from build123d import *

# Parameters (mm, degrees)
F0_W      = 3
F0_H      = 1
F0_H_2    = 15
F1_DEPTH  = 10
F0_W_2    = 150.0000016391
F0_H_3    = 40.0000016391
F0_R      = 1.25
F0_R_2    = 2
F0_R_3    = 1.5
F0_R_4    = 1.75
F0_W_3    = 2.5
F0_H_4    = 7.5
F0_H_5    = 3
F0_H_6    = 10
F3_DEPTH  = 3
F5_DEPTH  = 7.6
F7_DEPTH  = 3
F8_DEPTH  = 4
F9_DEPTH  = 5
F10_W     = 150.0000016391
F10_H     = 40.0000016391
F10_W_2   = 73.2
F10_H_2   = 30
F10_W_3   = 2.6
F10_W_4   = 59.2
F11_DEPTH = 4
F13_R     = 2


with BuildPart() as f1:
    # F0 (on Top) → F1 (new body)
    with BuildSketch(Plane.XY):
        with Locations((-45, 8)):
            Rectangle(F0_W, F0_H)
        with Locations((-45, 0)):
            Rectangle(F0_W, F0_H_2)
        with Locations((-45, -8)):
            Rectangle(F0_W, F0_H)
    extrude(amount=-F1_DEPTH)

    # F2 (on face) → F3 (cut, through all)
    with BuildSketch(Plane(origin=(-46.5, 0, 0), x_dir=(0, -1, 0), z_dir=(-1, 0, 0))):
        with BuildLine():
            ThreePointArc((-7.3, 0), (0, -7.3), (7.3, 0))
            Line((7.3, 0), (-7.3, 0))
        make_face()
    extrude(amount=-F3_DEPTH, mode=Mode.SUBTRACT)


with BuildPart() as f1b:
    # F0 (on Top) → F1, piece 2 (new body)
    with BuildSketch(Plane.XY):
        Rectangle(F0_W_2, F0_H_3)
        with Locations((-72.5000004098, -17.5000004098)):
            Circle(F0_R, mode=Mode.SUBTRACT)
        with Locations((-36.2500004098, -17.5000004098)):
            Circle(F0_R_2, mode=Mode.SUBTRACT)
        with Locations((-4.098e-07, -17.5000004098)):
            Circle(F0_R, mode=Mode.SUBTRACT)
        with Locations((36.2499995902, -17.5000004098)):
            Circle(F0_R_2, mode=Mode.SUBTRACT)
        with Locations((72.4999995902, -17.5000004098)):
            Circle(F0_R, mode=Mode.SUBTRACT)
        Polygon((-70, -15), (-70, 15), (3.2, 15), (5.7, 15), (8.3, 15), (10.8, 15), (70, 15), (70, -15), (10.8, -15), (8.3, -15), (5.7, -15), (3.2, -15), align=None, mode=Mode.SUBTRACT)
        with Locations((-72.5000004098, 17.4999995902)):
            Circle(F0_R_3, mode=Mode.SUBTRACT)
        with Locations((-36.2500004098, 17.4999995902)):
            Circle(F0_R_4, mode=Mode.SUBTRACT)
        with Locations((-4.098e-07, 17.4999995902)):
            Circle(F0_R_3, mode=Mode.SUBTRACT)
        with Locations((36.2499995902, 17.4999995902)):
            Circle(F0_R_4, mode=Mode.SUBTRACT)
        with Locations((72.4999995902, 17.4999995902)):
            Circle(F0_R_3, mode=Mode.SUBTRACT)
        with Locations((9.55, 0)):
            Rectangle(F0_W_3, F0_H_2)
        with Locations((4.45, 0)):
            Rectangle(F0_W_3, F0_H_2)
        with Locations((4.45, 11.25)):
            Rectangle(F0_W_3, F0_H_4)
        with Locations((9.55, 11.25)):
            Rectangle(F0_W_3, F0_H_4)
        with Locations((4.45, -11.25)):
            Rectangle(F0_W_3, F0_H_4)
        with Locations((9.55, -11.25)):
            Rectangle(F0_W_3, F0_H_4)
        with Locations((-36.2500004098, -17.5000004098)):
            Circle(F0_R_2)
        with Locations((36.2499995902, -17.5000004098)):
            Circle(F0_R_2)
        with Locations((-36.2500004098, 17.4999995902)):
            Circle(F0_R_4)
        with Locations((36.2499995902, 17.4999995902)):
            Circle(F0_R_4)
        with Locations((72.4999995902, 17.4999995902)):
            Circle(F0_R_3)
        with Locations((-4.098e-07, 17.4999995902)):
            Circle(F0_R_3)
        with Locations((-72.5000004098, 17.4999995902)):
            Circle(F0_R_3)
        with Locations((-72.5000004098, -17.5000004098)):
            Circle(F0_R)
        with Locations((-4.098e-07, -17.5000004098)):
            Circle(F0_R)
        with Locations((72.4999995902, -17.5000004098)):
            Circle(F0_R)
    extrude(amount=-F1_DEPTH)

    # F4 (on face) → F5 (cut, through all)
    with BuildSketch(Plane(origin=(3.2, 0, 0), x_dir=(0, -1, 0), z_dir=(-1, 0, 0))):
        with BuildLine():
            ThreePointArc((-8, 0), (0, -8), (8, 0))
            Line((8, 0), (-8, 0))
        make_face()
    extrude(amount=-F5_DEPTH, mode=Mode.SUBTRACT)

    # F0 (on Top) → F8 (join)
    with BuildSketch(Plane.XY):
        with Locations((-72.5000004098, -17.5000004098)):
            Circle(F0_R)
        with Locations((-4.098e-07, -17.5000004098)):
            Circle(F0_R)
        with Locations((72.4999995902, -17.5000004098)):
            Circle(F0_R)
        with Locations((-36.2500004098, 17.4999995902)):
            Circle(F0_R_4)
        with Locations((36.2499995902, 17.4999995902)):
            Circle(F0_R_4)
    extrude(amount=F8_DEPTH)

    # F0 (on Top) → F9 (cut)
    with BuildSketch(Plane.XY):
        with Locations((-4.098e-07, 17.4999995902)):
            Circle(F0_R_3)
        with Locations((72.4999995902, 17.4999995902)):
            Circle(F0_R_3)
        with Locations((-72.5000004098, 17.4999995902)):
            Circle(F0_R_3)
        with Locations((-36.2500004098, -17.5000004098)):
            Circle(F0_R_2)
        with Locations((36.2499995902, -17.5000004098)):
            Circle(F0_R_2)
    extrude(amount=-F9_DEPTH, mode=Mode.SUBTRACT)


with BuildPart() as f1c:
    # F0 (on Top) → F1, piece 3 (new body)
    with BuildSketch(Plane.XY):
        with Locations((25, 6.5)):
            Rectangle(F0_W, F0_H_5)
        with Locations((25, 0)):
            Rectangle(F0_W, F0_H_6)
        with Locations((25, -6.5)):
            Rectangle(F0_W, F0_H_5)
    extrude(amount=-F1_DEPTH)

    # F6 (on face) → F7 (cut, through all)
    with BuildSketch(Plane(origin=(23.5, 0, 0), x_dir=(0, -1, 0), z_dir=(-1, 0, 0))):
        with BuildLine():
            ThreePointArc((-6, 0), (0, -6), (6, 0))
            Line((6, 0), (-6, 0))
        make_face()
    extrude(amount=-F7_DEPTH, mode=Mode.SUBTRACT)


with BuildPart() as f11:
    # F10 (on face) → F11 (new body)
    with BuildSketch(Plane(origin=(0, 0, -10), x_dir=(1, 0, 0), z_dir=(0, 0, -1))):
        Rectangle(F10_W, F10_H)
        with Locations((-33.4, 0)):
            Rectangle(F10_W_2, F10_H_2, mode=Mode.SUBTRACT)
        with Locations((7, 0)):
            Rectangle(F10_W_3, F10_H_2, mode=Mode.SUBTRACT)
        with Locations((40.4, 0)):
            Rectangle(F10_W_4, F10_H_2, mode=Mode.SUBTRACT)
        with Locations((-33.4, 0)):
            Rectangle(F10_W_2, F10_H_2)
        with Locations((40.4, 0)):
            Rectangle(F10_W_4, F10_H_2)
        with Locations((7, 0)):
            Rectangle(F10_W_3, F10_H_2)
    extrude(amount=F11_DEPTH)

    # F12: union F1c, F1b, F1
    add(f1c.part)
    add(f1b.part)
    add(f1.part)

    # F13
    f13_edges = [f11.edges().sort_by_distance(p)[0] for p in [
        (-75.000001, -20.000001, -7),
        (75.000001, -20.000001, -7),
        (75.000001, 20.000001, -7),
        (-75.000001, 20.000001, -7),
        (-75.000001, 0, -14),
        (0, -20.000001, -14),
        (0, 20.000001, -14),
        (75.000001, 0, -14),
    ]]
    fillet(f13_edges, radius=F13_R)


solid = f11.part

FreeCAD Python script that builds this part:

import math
import FreeCAD as App
import Part
import Sketcher


def edges_at(feature, points):
    """Names of the edges that pass closest to the given points."""
    edges = feature.Shape.Edges
    near = lambda p: min(range(len(edges)), key=lambda i: edges[i].distToShape(Part.Vertex(*p))[0])
    return sorted({f"Edge{near(p) + 1}" for p in points})

doc = App.newDocument("Part")
params = doc.addObject("Spreadsheet::Sheet", "Params")
for row, (alias, value) in enumerate([
    ("sketch1_width", "3 mm"),
    ("sketch1_height", "17 mm"),
    ("pad1_length", "10 mm"),
    ("sketch2_radius", "7.3 mm"),
    ("sketch3_width", "150.000002 mm"),
    ("sketch3_height", "40.000002 mm"),
    ("sketch3_height2", "30 mm"),
    ("sketch3_width2", "59.2 mm"),
    ("sketch3_width3", "2.6 mm"),
    ("pad2_length", "10 mm"),
    ("sketch4_radius", "8 mm"),
    ("pocket2_length", "7.6 mm"),
    ("sketch5_diameter", "2.5 mm"),
    ("sketch5_diameter2", "3.5 mm"),
    ("pad3_length", "4 mm"),
    ("sketch6_diameter", "3 mm"),
    ("sketch6_diameter2", "4 mm"),
    ("pocket3_length", "5 mm"),
    ("sketch7_width", "3 mm"),
    ("sketch7_height", "16 mm"),
    ("pad4_length", "10 mm"),
    ("sketch8_radius", "6 mm"),
    ("sketch9_width", "150.000002 mm"),
    ("sketch9_height", "40.000002 mm"),
    ("pad5_length", "4 mm"),
    ("fillet_radius", "2 mm"),
], start=1):
    params.set(f"A{row}", alias)
    params.set(f"B{row}", "=" + value)
    params.setAlias(f"B{row}", alias)

body = doc.addObject("PartDesign::Body", "Body")

# Sketch on XY plane
sketch1 = body.newObject("Sketcher::SketchObject", "Sketch")
sketch1.AttachmentSupport = (doc.getObject("XY_Plane"), [""])
sketch1.MapMode = "FlatFace"
sketch1.addGeometry([
    Part.LineSegment(App.Vector(-46.5, 8.5, 0), App.Vector(-46.5, -8.5, 0)),
    Part.LineSegment(App.Vector(-46.5, -8.5, 0), App.Vector(-43.5, -8.5, 0)),
    Part.LineSegment(App.Vector(-43.5, -8.5, 0), App.Vector(-43.5, 8.5, 0)),
    Part.LineSegment(App.Vector(-43.5, 8.5, 0), App.Vector(-46.5, 8.5, 0)),
], False)
sketch1.addConstraint([
    Sketcher.Constraint("Coincident", 0, 2, 1, 1),
    Sketcher.Constraint("Coincident", 1, 2, 2, 1),
    Sketcher.Constraint("Coincident", 2, 2, 3, 1),
    Sketcher.Constraint("Coincident", 3, 2, 0, 1),
    Sketcher.Constraint("Vertical", 0),
    Sketcher.Constraint("Horizontal", 1),
    Sketcher.Constraint("Vertical", 2),
    Sketcher.Constraint("Horizontal", 3),
    Sketcher.Constraint("DistanceX", 1, 1, 1, 2, 3.0),
    Sketcher.Constraint("DistanceY", 0, 2, 0, 1, 17.0),
    Sketcher.Constraint("DistanceX", 0, 2, -1, 1, 46.5),
    Sketcher.Constraint("DistanceY", 0, 2, -1, 1, 8.5),
])
sketch1.setExpression("Constraints[8]", "Params.sketch1_width")
sketch1.setExpression("Constraints[9]", "Params.sketch1_height")
pad1 = body.newObject("PartDesign::Pad", "Pad")
pad1.Profile = sketch1
pad1.setExpression("Length", "Params.pad1_length")
pad1.Reversed = True

# Sketch on YZ plane
sketch2 = body.newObject("Sketcher::SketchObject", "Sketch001")
sketch2.AttachmentSupport = (doc.getObject("YZ_Plane"), [""])
sketch2.MapMode = "FlatFace"
sketch2.AttachmentOffset = App.Placement(App.Vector(0, 0, -46.5), App.Rotation())
sketch2.addGeometry([
    Part.ArcOfCircle(Part.Circle(App.Vector(0, 0, 0), App.Vector(0, 0, 1), 7), math.radians(180), math.radians(360)),
    Part.LineSegment(App.Vector(-7, 0, 0), App.Vector(7, 0, 0)),
], False)
sketch2.addConstraint([
    Sketcher.Constraint("Coincident", 0, 1, 1, 1),
    Sketcher.Constraint("Coincident", 1, 2, 0, 2),
    Sketcher.Constraint("Horizontal", 1),
    Sketcher.Constraint("Coincident", 0, 3, -1, 1),
    Sketcher.Constraint("PointOnObject", 0, 1, -1),
    Sketcher.Constraint("Radius", 0, 7.3),
])
sketch2.setExpression("Constraints[5]", "Params.sketch2_radius")
pocket1 = body.newObject("PartDesign::Pocket", "Pocket")
pocket1.Profile = sketch2
pocket1.Type = "ThroughAll"
pocket1.Reversed = True
body2 = doc.addObject("PartDesign::Body", "Body001")

# Sketch on XY plane
sketch3 = body2.newObject("Sketcher::SketchObject", "Sketch002")
sketch3.AttachmentSupport = (doc.getObject("XY_Plane001"), [""])
sketch3.MapMode = "FlatFace"
sketch3.addGeometry([
    Part.LineSegment(App.Vector(-75, 20, 0), App.Vector(-75, -20, 0)),  # 0
    Part.LineSegment(App.Vector(-75, -20, 0), App.Vector(75, -20, 0)),  # 1
    Part.LineSegment(App.Vector(75, -20, 0), App.Vector(75, 20, 0)),  # 2
    Part.LineSegment(App.Vector(75, 20, 0), App.Vector(-75, 20, 0)),  # 3
    Part.LineSegment(App.Vector(70, -15, 0), App.Vector(10.8, -15, 0)),  # 4
    Part.LineSegment(App.Vector(10.8, -15, 0), App.Vector(10.8, 15, 0)),  # 5
    Part.LineSegment(App.Vector(10.8, 15, 0), App.Vector(70, 15, 0)),  # 6
    Part.LineSegment(App.Vector(70, 15, 0), App.Vector(70, -15, 0)),  # 7
    Part.LineSegment(App.Vector(8.3, -15, 0), App.Vector(5.7, -15, 0)),  # 8
    Part.LineSegment(App.Vector(5.7, -15, 0), App.Vector(5.7, 15, 0)),  # 9
    Part.LineSegment(App.Vector(5.7, 15, 0), App.Vector(8.3, 15, 0)),  # 10
    Part.LineSegment(App.Vector(8.3, 15, 0), App.Vector(8.3, -15, 0)),  # 11
    Part.LineSegment(App.Vector(3.2, -15, 0), App.Vector(-70, -15, 0)),  # 12
    Part.LineSegment(App.Vector(-70, -15, 0), App.Vector(-70, 15, 0)),  # 13
    Part.LineSegment(App.Vector(-70, 15, 0), App.Vector(3.2, 15, 0)),  # 14
    Part.LineSegment(App.Vector(3.2, 15, 0), App.Vector(3.2, -15, 0)),  # 15
], False)
sketch3.addConstraint([
    Sketcher.Constraint("Coincident", 0, 2, 1, 1),
    Sketcher.Constraint("Coincident", 1, 2, 2, 1),
    Sketcher.Constraint("Coincident", 2, 2, 3, 1),
    Sketcher.Constraint("Coincident", 3, 2, 0, 1),
    Sketcher.Constraint("Coincident", 4, 2, 5, 1),
    Sketcher.Constraint("Coincident", 5, 2, 6, 1),
    Sketcher.Constraint("Coincident", 6, 2, 7, 1),
    Sketcher.Constraint("Coincident", 7, 2, 4, 1),
    Sketcher.Constraint("Coincident", 8, 2, 9, 1),
    Sketcher.Constraint("Coincident", 9, 2, 10, 1),
    Sketcher.Constraint("Coincident", 10, 2, 11, 1),
    Sketcher.Constraint("Coincident", 11, 2, 8, 1),
    Sketcher.Constraint("Coincident", 12, 2, 13, 1),
    Sketcher.Constraint("Coincident", 13, 2, 14, 1),
    Sketcher.Constraint("Coincident", 14, 2, 15, 1),
    Sketcher.Constraint("Coincident", 15, 2, 12, 1),
    Sketcher.Constraint("Vertical", 0),
    Sketcher.Constraint("Horizontal", 1),
    Sketcher.Constraint("Vertical", 2),
    Sketcher.Constraint("Horizontal", 3),
    Sketcher.Constraint("Horizontal", 4),
    Sketcher.Constraint("Vertical", 5),
    Sketcher.Constraint("Horizontal", 6),
    Sketcher.Constraint("Vertical", 7),
    Sketcher.Constraint("Horizontal", 8),
    Sketcher.Constraint("Vertical", 9),
    Sketcher.Constraint("Horizontal", 10),
    Sketcher.Constraint("Vertical", 11),
    Sketcher.Constraint("Horizontal", 12),
    Sketcher.Constraint("Vertical", 13),
    Sketcher.Constraint("Horizontal", 14),
    Sketcher.Constraint("Vertical", 15),
    Sketcher.Constraint("Symmetric", 0, 2, 2, 2, -1, 1),
    Sketcher.Constraint("Symmetric", 6, 2, 12, 2, -1, 1),
    Sketcher.Constraint("Horizontal", 7, 2, 8, 2),
    Sketcher.Constraint("Horizontal", 6, 2, 9, 2),
    Sketcher.Constraint("Horizontal", 11, 2, 12, 2),
    Sketcher.Constraint("Horizontal", 10, 2, 13, 2),
    Sketcher.Constraint("DistanceX", 1, 1, 1, 2, 150.000002),
    Sketcher.Constraint("DistanceY", 0, 2, 0, 1, 40.000002),
    Sketcher.Constraint("DistanceY", 5, 1, 5, 2, 30.0),
    Sketcher.Constraint("DistanceX", 4, 2, 4, 1, 59.2),
    Sketcher.Constraint("DistanceX", 8, 2, 8, 1, 2.6),
    Sketcher.Constraint("DistanceX", 12, 2, 12, 1, 73.2),
    Sketcher.Constraint("DistanceX", -1, 1, 6, 2, 70.0),
    Sketcher.Constraint("DistanceX", -1, 1, 8, 2, 5.7),
])
sketch3.setExpression("Constraints[38]", "Params.sketch3_width")
sketch3.setExpression("Constraints[39]", "Params.sketch3_height")
sketch3.setExpression("Constraints[40]", "Params.sketch3_height2")
sketch3.setExpression("Constraints[41]", "Params.sketch3_width2")
sketch3.setExpression("Constraints[42]", "Params.sketch3_width3")
pad2 = body2.newObject("PartDesign::Pad", "Pad001")
pad2.Profile = sketch3
pad2.setExpression("Length", "Params.pad2_length")
pad2.Reversed = True

# Sketch on YZ plane
sketch4 = body2.newObject("Sketcher::SketchObject", "Sketch003")
sketch4.AttachmentSupport = (doc.getObject("YZ_Plane001"), [""])
sketch4.MapMode = "FlatFace"
sketch4.AttachmentOffset = App.Placement(App.Vector(0, 0, 3.2), App.Rotation())
sketch4.addGeometry([
    Part.ArcOfCircle(Part.Circle(App.Vector(0, 0, 0), App.Vector(0, 0, 1), 8), math.radians(180), math.radians(360)),
    Part.LineSegment(App.Vector(-8, 0, 0), App.Vector(8, 0, 0)),
], False)
sketch4.addConstraint([
    Sketcher.Constraint("Coincident", 0, 1, 1, 1),
    Sketcher.Constraint("Coincident", 1, 2, 0, 2),
    Sketcher.Constraint("Horizontal", 1),
    Sketcher.Constraint("Coincident", 0, 3, -1, 1),
    Sketcher.Constraint("PointOnObject", 0, 1, -1),
    Sketcher.Constraint("Radius", 0, 8.0),
])
sketch4.setExpression("Constraints[5]", "Params.sketch4_radius")
pocket2 = body2.newObject("PartDesign::Pocket", "Pocket001")
pocket2.Profile = sketch4
pocket2.setExpression("Length", "Params.pocket2_length")
pocket2.Reversed = True

# Sketch on XY plane
sketch5 = body2.newObject("Sketcher::SketchObject", "Sketch004")
sketch5.AttachmentSupport = (doc.getObject("XY_Plane001"), [""])
sketch5.MapMode = "FlatFace"
sketch5.addGeometry([
    Part.Circle(App.Vector(-72.5, -17.5, 0), App.Vector(0, 0, 1), 1.2),  # 0
    Part.Circle(App.Vector(0, -17.5, 0), App.Vector(0, 0, 1), 1.2),  # 1
    Part.Circle(App.Vector(72.5, -17.5, 0), App.Vector(0, 0, 1), 1.2),  # 2
    Part.Circle(App.Vector(-36.3, 17.5, 0), App.Vector(0, 0, 1), 1.8),  # 3
    Part.Circle(App.Vector(36.2, 17.5, 0), App.Vector(0, 0, 1), 1.8),  # 4
], False)
sketch5.addConstraint([
    Sketcher.Constraint("Equal", 0, 1),
    Sketcher.Constraint("Equal", 1, 2),
    Sketcher.Constraint("Equal", 3, 4),
    Sketcher.Constraint("Symmetric", 0, 3, 2, 3, -2),
    Sketcher.Constraint("Symmetric", 3, 3, 4, 3, -2),
    Sketcher.Constraint("PointOnObject", 1, 3, -2),
    Sketcher.Constraint("Horizontal", 0, 3, 1, 3),
    Sketcher.Constraint("Diameter", 0, 2.5),
    Sketcher.Constraint("Diameter", 3, 3.5),
    Sketcher.Constraint("DistanceX", 0, 3, 2, 3, 145.0),
    Sketcher.Constraint("DistanceY", 0, 3, 3, 3, 35.0),
    Sketcher.Constraint("DistanceY", 0, 3, -1, 1, 17.5),
    Sketcher.Constraint("DistanceX", 3, 3, 4, 3, 72.5),
])
sketch5.setExpression("Constraints[7]", "Params.sketch5_diameter")
sketch5.setExpression("Constraints[8]", "Params.sketch5_diameter2")
pad3 = body2.newObject("PartDesign::Pad", "Pad002")
pad3.Profile = sketch5
pad3.setExpression("Length", "Params.pad3_length")

# Sketch on XY plane
sketch6 = body2.newObject("Sketcher::SketchObject", "Sketch005")
sketch6.AttachmentSupport = (doc.getObject("XY_Plane001"), [""])
sketch6.MapMode = "FlatFace"
sketch6.addGeometry([
    Part.Circle(App.Vector(0, 17.5, 0), App.Vector(0, 0, 1), 1.5),  # 0
    Part.Circle(App.Vector(72.5, 17.5, 0), App.Vector(0, 0, 1), 1.5),  # 1
    Part.Circle(App.Vector(-72.5, 17.5, 0), App.Vector(0, 0, 1), 1.5),  # 2
    Part.Circle(App.Vector(-36.3, -17.5, 0), App.Vector(0, 0, 1), 2),  # 3
    Part.Circle(App.Vector(36.2, -17.5, 0), App.Vector(0, 0, 1), 2),  # 4
], False)
sketch6.addConstraint([
    Sketcher.Constraint("Equal", 0, 1),
    Sketcher.Constraint("Equal", 1, 2),
    Sketcher.Constraint("Equal", 3, 4),
    Sketcher.Constraint("Symmetric", 1, 3, 2, 3, -2),
    Sketcher.Constraint("Symmetric", 3, 3, 4, 3, -2),
    Sketcher.Constraint("PointOnObject", 0, 3, -2),
    Sketcher.Constraint("Horizontal", 0, 3, 1, 3),
    Sketcher.Constraint("Diameter", 0, 3.0),
    Sketcher.Constraint("Diameter", 3, 4.0),
    Sketcher.Constraint("DistanceX", 2, 3, 1, 3, 145.0),
    Sketcher.Constraint("DistanceY", 3, 3, 0, 3, 35.0),
    Sketcher.Constraint("DistanceY", -1, 1, 0, 3, 17.5),
    Sketcher.Constraint("DistanceX", 3, 3, 4, 3, 72.5),
])
sketch6.setExpression("Constraints[7]", "Params.sketch6_diameter")
sketch6.setExpression("Constraints[8]", "Params.sketch6_diameter2")
pocket3 = body2.newObject("PartDesign::Pocket", "Pocket002")
pocket3.Profile = sketch6
pocket3.setExpression("Length", "Params.pocket3_length")
body3 = doc.addObject("PartDesign::Body", "Body002")

# Sketch on XY plane
sketch7 = body3.newObject("Sketcher::SketchObject", "Sketch006")
sketch7.AttachmentSupport = (doc.getObject("XY_Plane002"), [""])
sketch7.MapMode = "FlatFace"
sketch7.addGeometry([
    Part.LineSegment(App.Vector(23.5, 8, 0), App.Vector(23.5, -8, 0)),
    Part.LineSegment(App.Vector(23.5, -8, 0), App.Vector(26.5, -8, 0)),
    Part.LineSegment(App.Vector(26.5, -8, 0), App.Vector(26.5, 8, 0)),
    Part.LineSegment(App.Vector(26.5, 8, 0), App.Vector(23.5, 8, 0)),
], False)
sketch7.addConstraint([
    Sketcher.Constraint("Coincident", 0, 2, 1, 1),
    Sketcher.Constraint("Coincident", 1, 2, 2, 1),
    Sketcher.Constraint("Coincident", 2, 2, 3, 1),
    Sketcher.Constraint("Coincident", 3, 2, 0, 1),
    Sketcher.Constraint("Vertical", 0),
    Sketcher.Constraint("Horizontal", 1),
    Sketcher.Constraint("Vertical", 2),
    Sketcher.Constraint("Horizontal", 3),
    Sketcher.Constraint("DistanceX", 1, 1, 1, 2, 3.0),
    Sketcher.Constraint("DistanceY", 0, 2, 0, 1, 16.0),
    Sketcher.Constraint("DistanceY", 0, 2, -1, 1, 8.0),
    Sketcher.Constraint("DistanceX", -1, 1, 0, 2, 23.5),
])
sketch7.setExpression("Constraints[8]", "Params.sketch7_width")
sketch7.setExpression("Constraints[9]", "Params.sketch7_height")
pad4 = body3.newObject("PartDesign::Pad", "Pad003")
pad4.Profile = sketch7
pad4.setExpression("Length", "Params.pad4_length")
pad4.Reversed = True

# Sketch on YZ plane
sketch8 = body3.newObject("Sketcher::SketchObject", "Sketch007")
sketch8.AttachmentSupport = (doc.getObject("YZ_Plane002"), [""])
sketch8.MapMode = "FlatFace"
sketch8.AttachmentOffset = App.Placement(App.Vector(0, 0, 23.5), App.Rotation())
sketch8.addGeometry([
    Part.ArcOfCircle(Part.Circle(App.Vector(0, 0, 0), App.Vector(0, 0, 1), 6), math.radians(180), math.radians(360)),
    Part.LineSegment(App.Vector(-6, 0, 0), App.Vector(6, 0, 0)),
], False)
sketch8.addConstraint([
    Sketcher.Constraint("Coincident", 0, 1, 1, 1),
    Sketcher.Constraint("Coincident", 1, 2, 0, 2),
    Sketcher.Constraint("Horizontal", 1),
    Sketcher.Constraint("Coincident", 0, 3, -1, 1),
    Sketcher.Constraint("PointOnObject", 0, 1, -1),
    Sketcher.Constraint("Radius", 0, 6.0),
])
sketch8.setExpression("Constraints[5]", "Params.sketch8_radius")
pocket4 = body3.newObject("PartDesign::Pocket", "Pocket003")
pocket4.Profile = sketch8
pocket4.Type = "ThroughAll"
pocket4.Reversed = True
body4 = doc.addObject("PartDesign::Body", "Body003")

# Sketch on XY plane
sketch9 = body4.newObject("Sketcher::SketchObject", "Sketch008")
sketch9.AttachmentSupport = (doc.getObject("XY_Plane003"), [""])
sketch9.MapMode = "FlatFace"
sketch9.AttachmentOffset = App.Placement(App.Vector(0, 0, -10), App.Rotation())
sketch9.addGeometry([
    Part.LineSegment(App.Vector(-75, -20, 0), App.Vector(-75, 20, 0)),
    Part.LineSegment(App.Vector(-75, 20, 0), App.Vector(75, 20, 0)),
    Part.LineSegment(App.Vector(75, 20, 0), App.Vector(75, -20, 0)),
    Part.LineSegment(App.Vector(75, -20, 0), App.Vector(-75, -20, 0)),
], False)
sketch9.addConstraint([
    Sketcher.Constraint("Coincident", 0, 2, 1, 1),
    Sketcher.Constraint("Coincident", 1, 2, 2, 1),
    Sketcher.Constraint("Coincident", 2, 2, 3, 1),
    Sketcher.Constraint("Coincident", 3, 2, 0, 1),
    Sketcher.Constraint("Vertical", 0),
    Sketcher.Constraint("Horizontal", 1),
    Sketcher.Constraint("Vertical", 2),
    Sketcher.Constraint("Horizontal", 3),
    Sketcher.Constraint("Symmetric", 0, 2, 2, 2, -1, 1),
    Sketcher.Constraint("DistanceX", 1, 1, 1, 2, 150.000002),
    Sketcher.Constraint("DistanceY", 0, 1, 0, 2, 40.000002),
])
sketch9.setExpression("Constraints[9]", "Params.sketch9_width")
sketch9.setExpression("Constraints[10]", "Params.sketch9_height")
pad5 = body4.newObject("PartDesign::Pad", "Pad004")
pad5.Profile = sketch9
pad5.setExpression("Length", "Params.pad5_length")
pad5.Reversed = True
doc.recompute()

boolean = body4.newObject("PartDesign::Boolean", "Boolean")
boolean.Type = "Fuse"
boolean.addObjects([body3])
doc.recompute()

boolean2 = body4.newObject("PartDesign::Boolean", "Boolean001")
boolean2.Type = "Fuse"
boolean2.addObjects([body2])
doc.recompute()

boolean3 = body4.newObject("PartDesign::Boolean", "Boolean002")
boolean3.Type = "Fuse"
boolean3.addObjects([body])
doc.recompute()

fillet = body4.newObject("PartDesign::Fillet", "Fillet")
fillet.Base = (boolean3, edges_at(boolean3, [
    (-75, -20, -7),
    (75, -20, -7),
    (75, 20, -7),
    (-75, 20, -7),
    (-75, 0, -14),
    (0, -20, -14),
    (0, 20, -14),
    (75, 0, -14),
]))
fillet.setExpression("Radius", "Params.fillet_radius")

doc.recompute()
